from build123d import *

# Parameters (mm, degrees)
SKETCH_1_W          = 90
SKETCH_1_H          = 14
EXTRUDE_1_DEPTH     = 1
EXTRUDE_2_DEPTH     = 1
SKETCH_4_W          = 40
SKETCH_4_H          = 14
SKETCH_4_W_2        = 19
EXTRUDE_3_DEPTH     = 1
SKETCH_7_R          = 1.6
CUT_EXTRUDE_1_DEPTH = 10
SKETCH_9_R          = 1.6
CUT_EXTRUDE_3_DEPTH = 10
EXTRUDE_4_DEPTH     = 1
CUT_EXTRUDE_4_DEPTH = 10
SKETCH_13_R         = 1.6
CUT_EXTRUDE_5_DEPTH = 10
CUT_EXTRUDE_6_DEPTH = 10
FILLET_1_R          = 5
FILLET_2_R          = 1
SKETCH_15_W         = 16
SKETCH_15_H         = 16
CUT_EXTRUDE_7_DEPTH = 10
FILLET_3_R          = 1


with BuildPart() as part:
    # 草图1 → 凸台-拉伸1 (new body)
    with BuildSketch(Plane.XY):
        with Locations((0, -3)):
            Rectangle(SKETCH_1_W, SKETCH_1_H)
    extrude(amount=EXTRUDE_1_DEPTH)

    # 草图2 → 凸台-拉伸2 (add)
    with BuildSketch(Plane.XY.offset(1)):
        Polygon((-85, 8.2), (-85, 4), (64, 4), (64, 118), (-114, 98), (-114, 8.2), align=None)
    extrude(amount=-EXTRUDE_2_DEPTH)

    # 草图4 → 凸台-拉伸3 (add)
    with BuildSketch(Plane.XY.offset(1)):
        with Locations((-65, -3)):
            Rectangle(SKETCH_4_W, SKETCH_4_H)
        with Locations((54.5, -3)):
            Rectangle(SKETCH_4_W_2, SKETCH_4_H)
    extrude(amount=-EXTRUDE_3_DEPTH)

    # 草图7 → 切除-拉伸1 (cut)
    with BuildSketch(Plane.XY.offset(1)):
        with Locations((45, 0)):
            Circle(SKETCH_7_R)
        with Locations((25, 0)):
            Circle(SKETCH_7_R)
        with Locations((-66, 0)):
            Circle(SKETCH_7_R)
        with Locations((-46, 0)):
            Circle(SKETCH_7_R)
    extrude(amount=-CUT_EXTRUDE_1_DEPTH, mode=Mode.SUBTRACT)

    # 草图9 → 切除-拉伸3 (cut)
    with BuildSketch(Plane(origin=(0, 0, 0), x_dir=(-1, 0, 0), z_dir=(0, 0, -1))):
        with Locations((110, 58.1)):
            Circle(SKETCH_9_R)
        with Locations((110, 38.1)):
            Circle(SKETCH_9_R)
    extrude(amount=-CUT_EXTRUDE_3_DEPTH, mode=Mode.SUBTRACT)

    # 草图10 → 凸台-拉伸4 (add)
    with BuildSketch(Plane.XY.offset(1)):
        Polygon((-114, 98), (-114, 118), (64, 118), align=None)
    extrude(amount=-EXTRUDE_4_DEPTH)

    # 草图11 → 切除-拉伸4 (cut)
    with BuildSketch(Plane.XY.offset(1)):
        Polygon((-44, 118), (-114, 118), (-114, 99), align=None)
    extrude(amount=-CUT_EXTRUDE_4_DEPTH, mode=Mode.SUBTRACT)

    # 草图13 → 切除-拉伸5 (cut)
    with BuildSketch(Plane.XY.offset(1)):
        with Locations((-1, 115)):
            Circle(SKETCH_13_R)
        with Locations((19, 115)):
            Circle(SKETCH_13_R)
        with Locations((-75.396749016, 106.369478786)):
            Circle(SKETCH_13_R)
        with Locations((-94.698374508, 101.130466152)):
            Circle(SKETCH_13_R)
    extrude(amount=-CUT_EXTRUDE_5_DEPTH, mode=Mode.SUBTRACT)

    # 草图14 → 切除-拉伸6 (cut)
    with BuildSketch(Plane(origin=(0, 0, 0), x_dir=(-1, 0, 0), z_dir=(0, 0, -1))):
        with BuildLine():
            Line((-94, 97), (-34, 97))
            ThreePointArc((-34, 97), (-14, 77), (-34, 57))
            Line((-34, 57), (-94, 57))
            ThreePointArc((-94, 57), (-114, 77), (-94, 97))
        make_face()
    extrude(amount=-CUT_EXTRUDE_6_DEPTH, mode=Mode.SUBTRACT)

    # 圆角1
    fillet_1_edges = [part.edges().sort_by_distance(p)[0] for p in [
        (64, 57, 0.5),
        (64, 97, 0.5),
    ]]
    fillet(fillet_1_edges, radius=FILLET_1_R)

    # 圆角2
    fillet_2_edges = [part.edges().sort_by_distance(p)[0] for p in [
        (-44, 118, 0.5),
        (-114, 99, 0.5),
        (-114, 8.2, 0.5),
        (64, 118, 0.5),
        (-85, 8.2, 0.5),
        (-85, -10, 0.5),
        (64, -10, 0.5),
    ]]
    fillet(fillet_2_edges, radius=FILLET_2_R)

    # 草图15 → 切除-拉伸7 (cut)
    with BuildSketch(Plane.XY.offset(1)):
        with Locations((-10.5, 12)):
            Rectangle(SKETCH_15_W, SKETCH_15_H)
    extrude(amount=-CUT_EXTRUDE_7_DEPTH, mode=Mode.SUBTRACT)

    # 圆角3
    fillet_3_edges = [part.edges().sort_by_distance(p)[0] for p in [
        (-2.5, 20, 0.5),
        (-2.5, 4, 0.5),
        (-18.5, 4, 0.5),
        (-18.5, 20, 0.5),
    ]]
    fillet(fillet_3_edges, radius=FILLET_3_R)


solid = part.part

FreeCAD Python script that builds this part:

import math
import FreeCAD as App
import Part
import Sketcher
from FreeCAD import Vector
Q = App.Units.Quantity


def edges_at(feature, points):
    """Names of the edges that pass closest to the given points."""
    edges = feature.Shape.Edges
    near = lambda p: min(range(len(edges)), key=lambda i: edges[i].distToShape(Part.Vertex(*p))[0])
    return sorted({f"Edge{near(p) + 1}" for p in points})


def add_polygon(sketch, points):
    """Adds a closed chain of lines whose ends are joined by coincident constraints."""
    first, n = sketch.GeometryCount, len(points)
    for a, b in zip(points, points[1:] + points[:1]):
        sketch.addGeometry(Part.LineSegment(App.Vector(*a, 0), App.Vector(*b, 0)), False)
    for i in range(n):
        sketch.addConstraint(Sketcher.Constraint("Coincident", first + i, 2, first + (i + 1) % n, 1))

doc = App.newDocument("Part")
params = doc.addObject("Spreadsheet::Sheet", "Params")
for row, (alias, value) in enumerate([
    ("sketch1_width", "90 mm"),
    ("sketch1_height", "14 mm"),
    ("pad1_length", "1 mm"),
    ("sketch2_width", "149 mm"),
    ("sketch2_width2", "29 mm"),
    ("sketch2_height", "114 mm"),
    ("sketch2_height2", "4.2 mm"),
    ("sketch2_height3", "89.8 mm"),
    ("pad2_length", "1 mm"),
    ("sketch3_width", "40 mm"),
    ("sketch3_width2", "19 mm"),
    ("sketch3_height", "14 mm"),
    ("pad3_length", "1 mm"),
    ("sketch4_diameter", "3.2 mm"),
    ("pocket1_length", "10 mm"),
    ("sketch5_diameter", "3.2 mm"),
    ("pocket2_length", "10 mm"),
    ("sketch6_width", "178 mm"),
    ("sketch6_height", "20 mm"),
    ("pad4_length", "1 mm"),
    ("sketch7_width", "70 mm"),
    ("sketch7_height", "19 mm"),
    ("pocket3_length", "10 mm"),
    ("sketch8_diameter", "3.2 mm"),
    ("pocket4_length", "10 mm"),
    ("sketch9_radius", "20 mm"),
    ("sketch9_width", "60 mm"),
    ("pocket5_length", "10 mm"),
    ("fillet_radius", "5 mm"),
    ("fillet2_radius", "1 mm"),
    ("sketch10_width", "16 mm"),
    ("pocket6_length", "10 mm"),
    ("fillet3_radius", "1 mm"),
], start=1):
    params.set(f"A{row}", alias)
    params.set(f"B{row}", "=" + value)
    params.setAlias(f"B{row}", alias)

body = doc.addObject("PartDesign::Body", "Body")

sketch1 = body.newObject("Sketcher::SketchObject", "Sketch")
sketch1.AttachmentSupport = (doc.getObject("XY_Plane"), [""])
sketch1.MapMode = "FlatFace"
add_polygon(sketch1, [(-45, 4), (-45, -10), (45, -10), (45, 4)])
sketch1.addConstraint(Sketcher.Constraint("Vertical", 0))
sketch1.addConstraint(Sketcher.Constraint("Horizontal", 1))
sketch1.addConstraint(Sketcher.Constraint("Vertical", 2))
sketch1.addConstraint(Sketcher.Constraint("Horizontal", 3))
sketch1.addConstraint(Sketcher.Constraint("DistanceX", 1, 1, 1, 2, Q("90 mm")))
sketch1.addConstraint(Sketcher.Constraint("DistanceY", 0, 2, 0, 1, Q("14 mm")))
sketch1.addConstraint(Sketcher.Constraint("DistanceX", 0, 2, -1, 1, Q("45 mm")))
sketch1.addConstraint(Sketcher.Constraint("DistanceY", 0, 2, -1, 1, Q("10 mm")))
sketch1.setExpression("Constraints[8]", "Params.sketch1_width")
sketch1.setExpression("Constraints[9]", "Params.sketch1_height")
pad1 = body.newObject("PartDesign::Pad", "Pad")
pad1.Profile = sketch1
pad1.setExpression("Length", "Params.pad1_length")

sketch2 = body.newObject("Sketcher::SketchObject", "Sketch001")
sketch2.AttachmentSupport = (doc.getObject("XY_Plane"), [""])
sketch2.MapMode = "FlatFace"
sketch2.AttachmentOffset = App.Placement(Vector(0, 0, 1), App.Rotation())
add_polygon(sketch2, [(-85, 8.2), (-85, 4), (64, 4), (64, 118), (-114, 98), (-114, 8.2)])
sketch2.addConstraint(Sketcher.Constraint("Vertical", 0))
sketch2.addConstraint(Sketcher.Constraint("Horizontal", 1))
sketch2.addConstraint(Sketcher.Constraint("Vertical", 2))
sketch2.addConstraint(Sketcher.Constraint("Vertical", 4))
sketch2.addConstraint(Sketcher.Constraint("Horizontal", 5))
sketch2.addConstraint(Sketcher.Constraint("DistanceX", 1, 1, 1, 2, Q("149 mm")))
sketch2.addConstraint(Sketcher.Constraint("DistanceX", 5, 1, 5, 2, Q("29 mm")))
sketch2.addConstraint(Sketcher.Constraint("DistanceY", 2, 1, 2, 2, Q("114 mm")))
sketch2.addConstraint(Sketcher.Constraint("DistanceY", 0, 2, 0, 1, Q("4.2 mm")))
sketch2.addConstraint(Sketcher.Constraint("DistanceY", 4, 2, 4, 1, Q("89.8 mm")))
sketch2.addConstraint(Sketcher.Constraint("DistanceX", 0, 2, -1, 1, Q("85 mm")))
sketch2.addConstraint(Sketcher.Constraint("DistanceY", -1, 1, 0, 2, Q("4 mm")))
sketch2.setExpression("Constraints[11]", "Params.sketch2_width")
sketch2.setExpression("Constraints[12]", "Params.sketch2_width2")
sketch2.setExpression("Constraints[13]", "Params.sketch2_height")
sketch2.setExpression("Constraints[14]", "Params.sketch2_height2")
sketch2.setExpression("Constraints[15]", "Params.sketch2_height3")
pad2 = body.newObject("PartDesign::Pad", "Pad001")
pad2.Profile = sketch2
pad2.setExpression("Length", "Params.pad2_length")
pad2.Reversed = True

sketch3 = body.newObject("Sketcher::SketchObject", "Sketch002")
sketch3.AttachmentSupport = (doc.getObject("XY_Plane"), [""])
sketch3.MapMode = "FlatFace"
sketch3.AttachmentOffset = App.Placement(Vector(0, 0, 1), App.Rotation())
add_polygon(sketch3, [(-85, 4), (-85, -10), (-45, -10), (-45, 4)])
add_polygon(sketch3, [(45, 4), (45, -10), (64, -10), (64, 4)])
sketch3.addConstraint(Sketcher.Constraint("Vertical", 0))
sketch3.addConstraint(Sketcher.Constraint("Horizontal", 1))
sketch3.addConstraint(Sketcher.Constraint("Vertical", 2))
sketch3.addConstraint(Sketcher.Constraint("Horizontal", 3))
sketch3.addConstraint(Sketcher.Constraint("Vertical", 4))
sketch3.addConstraint(Sketcher.Constraint("Horizontal", 5))
sketch3.addConstraint(Sketcher.Constraint("Vertical", 6))
sketch3.addConstraint(Sketcher.Constraint("Horizontal", 7))
sketch3.addConstraint(Sketcher.Constraint("Symmetric", 1, 2, 4, 2, -2))
sketch3.addConstraint(Sketcher.Constraint("Horizontal", 3, 2, 6, 2))
sketch3.addConstraint(Sketcher.Constraint("DistanceX", 1, 1, 1, 2, Q("40 mm")))
sketch3.addConstraint(Sketcher.Constraint("DistanceX", 5, 1, 5, 2, Q("19 mm")))
sketch3.addConstraint(Sketcher.Constraint("DistanceY", 0, 2, 0, 1, Q("14 mm")))
sketch3.addConstraint(Sketcher.Constraint("DistanceX", 0, 2, -1, 1, Q("85 mm")))
sketch3.addConstraint(Sketcher.Constraint("DistanceY", 0, 2, -1, 1, Q("10 mm")))
sketch3.setExpression("Constraints[18]", "Params.sketch3_width")
sketch3.setExpression("Constraints[19]", "Params.sketch3_width2")
sketch3.setExpression("Constraints[20]", "Params.sketch3_height")
pad3 = body.newObject("PartDesign::Pad", "Pad002")
pad3.Profile = sketch3
pad3.setExpression("Length", "Params.pad3_length")
pad3.Reversed = True

sketch4 = body.newObject("Sketcher::SketchObject", "Sketch003")
sketch4.AttachmentSupport = (doc.getObject("XY_Plane"), [""])
sketch4.MapMode = "FlatFace"
sketch4.AttachmentOffset = App.Placement(Vector(0, 0, 1), App.Rotation())
sketch4.addGeometry(Part.Circle(Vector(45, 0, 0), Vector(0, 0, 1), 1.6), False)
sketch4.addGeometry(Part.Circle(Vector(25, 0, 0), Vector(0, 0, 1), 1.6), False)
sketch4.addGeometry(Part.Circle(Vector(-66, 0, 0), Vector(0, 0, 1), 1.6), False)
sketch4.addGeometry(Part.Circle(Vector(-46, 0, 0), Vector(0, 0, 1), 1.6), False)
sketch4.addConstraint(Sketcher.Constraint("Equal", 0, 1))
sketch4.addConstraint(Sketcher.Constraint("Equal", 1, 2))
sketch4.addConstraint(Sketcher.Constraint("Equal", 2, 3))
sketch4.addConstraint(Sketcher.Constraint("PointOnObject", 0, 3, -1))
sketch4.addConstraint(Sketcher.Constraint("PointOnObject", 1, 3, -1))
sketch4.addConstraint(Sketcher.Constraint("PointOnObject", 2, 3, -1))
sketch4.addConstraint(Sketcher.Constraint("PointOnObject", 3, 3, -1))
sketch4.addConstraint(Sketcher.Constraint("Diameter", 0, Q("3.2 mm")))
sketch4.addConstraint(Sketcher.Constraint("DistanceX", -1, 1, 0, 3, Q("45 mm")))
sketch4.addConstraint(Sketcher.Constraint("DistanceX", -1, 1, 1, 3, Q("25 mm")))
sketch4.addConstraint(Sketcher.Constraint("DistanceX", 2, 3, -1, 1, Q("66 mm")))
sketch4.addConstraint(Sketcher.Constraint("DistanceX", 3, 3, -1, 1, Q("46 mm")))
sketch4.setExpression("Constraints[7]", "Params.sketch4_diameter")
pocket1 = body.newObject("PartDesign::Pocket", "Pocket")
pocket1.Profile = sketch4
pocket1.setExpression("Length", "Params.pocket1_length")

sketch5 = body.newObject("Sketcher::SketchObject", "Sketch004")
sketch5.AttachmentSupport = (doc.getObject("XY_Plane"), [""])
sketch5.MapMode = "FlatFace"
sketch5.addGeometry(Part.Circle(Vector(-110, 58.1, 0), Vector(0, 0, 1), 1.6), False)
sketch5.addGeometry(Part.Circle(Vector(-110, 38.1, 0), Vector(0, 0, 1), 1.6), False)
sketch5.addConstraint(Sketcher.Constraint("Equal", 0, 1))
sketch5.addConstraint(Sketcher.Constraint("Vertical", 0, 3, 1, 3))
sketch5.addConstraint(Sketcher.Constraint("Diameter", 0, Q("3.2 mm")))
sketch5.addConstraint(Sketcher.Constraint("DistanceX", 0, 3, -1, 1, Q("110 mm")))
sketch5.addConstraint(Sketcher.Constraint("DistanceY", 1, 3, 0, 3, Q("20 mm")))
sketch5.addConstraint(Sketcher.Constraint("DistanceY", -1, 1, 0, 3, Q("58.1 mm")))
sketch5.setExpression("Constraints[2]", "Params.sketch5_diameter")
pocket2 = body.newObject("PartDesign::Pocket", "Pocket001")
pocket2.Profile = sketch5
pocket2.setExpression("Length", "Params.pocket2_length")
pocket2.Reversed = True

sketch6 = body.newObject("Sketcher::SketchObject", "Sketch005")
sketch6.AttachmentSupport = (doc.getObject("XY_Plane"), [""])
sketch6.MapMode = "FlatFace"
sketch6.AttachmentOffset = App.Placement(Vector(0, 0, 1), App.Rotation())
add_polygon(sketch6, [(-114, 118), (-114, 98), (64, 118)])
sketch6.addConstraint(Sketcher.Constraint("Vertical", 0))
sketch6.addConstraint(Sketcher.Constraint("Horizontal", 2))
sketch6.addConstraint(Sketcher.Constraint("DistanceX", 2, 2, 2, 1, Q("178 mm")))
sketch6.addConstraint(Sketcher.Constraint("DistanceY", 0, 2, 0, 1, Q("20 mm")))
sketch6.addConstraint(Sketcher.Constraint("DistanceX", 0, 2, -1, 1, Q("114 mm")))
sketch6.addConstraint(Sketcher.Constraint("DistanceY", -1, 1, 0, 2, Q("98 mm")))
sketch6.setExpression("Constraints[5]", "Params.sketch6_width")
sketch6.setExpression("Constraints[6]", "Params.sketch6_height")
pad4 = body.newObject("PartDesign::Pad", "Pad003")
pad4.Profile = sketch6
pad4.setExpression("Length", "Params.pad4_length")
pad4.Reversed = True

sketch7 = body.newObject("Sketcher::SketchObject", "Sketch006")
sketch7.AttachmentSupport = (doc.getObject("XY_Plane"), [""])
sketch7.MapMode = "FlatFace"
sketch7.AttachmentOffset = App.Placement(Vector(0, 0, 1), App.Rotation())
add_polygon(sketch7, [(-44, 118), (-114, 118), (-114, 99)])
sketch7.addConstraint(Sketcher.Constraint("Horizontal", 0))
sketch7.addConstraint(Sketcher.Constraint("Vertical", 1))
sketch7.addConstraint(Sketcher.Constraint("DistanceX", 0, 2, 0, 1, Q("70 mm")))
sketch7.addConstraint(Sketcher.Constraint("DistanceY", 1, 2, 1, 1, Q("19 mm")))
sketch7.addConstraint(Sketcher.Constraint("DistanceX", 0, 2, -1, 1, Q("114 mm")))
sketch7.addConstraint(Sketcher.Constraint("DistanceY", -1, 1, 0, 2, Q("118 mm")))
sketch7.setExpression("Constraints[5]", "Params.sketch7_width")
sketch7.setExpression("Constraints[6]", "Params.sketch7_height")
pocket3 = body.newObject("PartDesign::Pocket", "Pocket002")
pocket3.Profile = sketch7
pocket3.setExpression("Length", "Params.pocket3_length")

sketch8 = body.newObject("Sketcher::SketchObject", "Sketch007")
sketch8.AttachmentSupport = (doc.getObject("XY_Plane"), [""])
sketch8.MapMode = "FlatFace"
sketch8.AttachmentOffset = App.Placement(Vector(0, 0, 1), App.Rotation())
sketch8.addGeometry(Part.Circle(Vector(-1, 115, 0), Vector(0, 0, 1), 1.6), False)
sketch8.addGeometry(Part.Circle(Vector(19, 115, 0), Vector(0, 0, 1), 1.6), False)
sketch8.addGeometry(Part.Circle(Vector(-75.396749, 106.369479, 0), Vector(0, 0, 1), 1.6), False)
sketch8.addGeometry(Part.Circle(Vector(-94.698375, 101.130466, 0), Vector(0, 0, 1), 1.6), False)
sketch8.addConstraint(Sketcher.Constraint("Equal", 0, 1))
sketch8.addConstraint(Sketcher.Constraint("Equal", 1, 2))
sketch8.addConstraint(Sketcher.Constraint("Equal", 2, 3))
sketch8.addConstraint(Sketcher.Constraint("Horizontal", 0, 3, 1, 3))
sketch8.addConstraint(Sketcher.Constraint("Diameter", 0, Q("3.2 mm")))
sketch8.addConstraint(Sketcher.Constraint("DistanceX", 0, 3, -1, 1, Q("1 mm")))
sketch8.addConstraint(Sketcher.Constraint("DistanceY", -1, 1, 0, 3, Q("115 mm")))
sketch8.addConstraint(Sketcher.Constraint("DistanceX", -1, 1, 1, 3, Q("19 mm")))
sketch8.addConstraint(Sketcher.Constraint("DistanceX", 2, 3, -1, 1, Q("75.396749 mm")))
sketch8.addConstraint(Sketcher.Constraint("DistanceY", -1, 1, 2, 3, Q("106.369479 mm")))
sketch8.addConstraint(Sketcher.Constraint("DistanceX", 3, 3, -1, 1, Q("94.698375 mm")))
sketch8.addConstraint(Sketcher.Constraint("DistanceY", -1, 1, 3, 3, Q("101.130466 mm")))
sketch8.setExpression("Constraints[4]", "Params.sketch8_diameter")
pocket4 = body.newObject("PartDesign::Pocket", "Pocket003")
pocket4.Profile = sketch8
pocket4.setExpression("Length", "Params.pocket4_length")

sketch9 = body.newObject("Sketcher::SketchObject", "Sketch008")
sketch9.AttachmentSupport = (doc.getObject("XY_Plane"), [""])
sketch9.MapMode = "FlatFace"
sketch9.addGeometry(Part.LineSegment(Vector(34, 97, 0), Vector(94, 97, 0)), False)
sketch9.addGeometry(Part.ArcOfCircle(Part.Circle(Vector(94, 77, 0), Vector(0, 0, 1), 20), math.radians(-90), math.radians(90)), False)
sketch9.addGeometry(Part.LineSegment(Vector(94, 57, 0), Vector(34, 57, 0)), False)
sketch9.addGeometry(Part.ArcOfCircle(Part.Circle(Vector(34, 77, 0), Vector(0, 0, 1), 20), math.radians(90), math.radians(270)), False)
sketch9.addConstraint(Sketcher.Constraint("Tangent", 0, 2, 1, 2))
sketch9.addConstraint(Sketcher.Constraint("Tangent", 1, 1, 2, 1))
sketch9.addConstraint(Sketcher.Constraint("Tangent", 2, 2, 3, 2))
sketch9.addConstraint(Sketcher.Constraint("Tangent", 3, 1, 0, 1))
sketch9.addConstraint(Sketcher.Constraint("Horizontal", 0))
sketch9.addConstraint(Sketcher.Constraint("Horizontal", 2))
sketch9.addConstraint(Sketcher.Constraint("Radius", 1, Q("20 mm")))
sketch9.addConstraint(Sketcher.Constraint("DistanceX", 0, 1, 0, 2, Q("60 mm")))
sketch9.addConstraint(Sketcher.Constraint("DistanceX", -1, 1, 1, 3, Q("94 mm")))
sketch9.addConstraint(Sketcher.Constraint("DistanceY", -1, 1, 1, 3, Q("77 mm")))
sketch9.setExpression("Constraints[6]", "Params.sketch9_radius")
sketch9.setExpression("Constraints[7]", "Params.sketch9_width")
pocket5 = body.newObject("PartDesign::Pocket", "Pocket004")
pocket5.Profile = sketch9
pocket5.setExpression("Length", "Params.pocket5_length")
pocket5.Reversed = True
doc.recompute()

fillet = body.newObject("PartDesign::Fillet", "Fillet")
fillet.Base = (pocket5, edges_at(pocket5, [(64, 57, 0.5), (64, 97, 0.5)]))
fillet.setExpression("Radius", "Params.fillet_radius")
doc.recompute()

fillet2 = body.newObject("PartDesign::Fillet", "Fillet001")
fillet2.Base = (fillet, edges_at(fillet, [
    (-44, 118, 0.5),
    (-114, 99, 0.5),
    (-114, 8.2, 0.5),
    (64, 118, 0.5),
    (-85, 8.2, 0.5),
    (-85, -10, 0.5),
    (64, -10, 0.5),
]))
fillet2.setExpression("Radius", "Params.fillet2_radius")

sketch10 = body.newObject("Sketcher::SketchObject", "Sketch009")
sketch10.AttachmentSupport = (doc.getObject("XY_Plane"), [""])
sketch10.MapMode = "FlatFace"
sketch10.AttachmentOffset = App.Placement(Vector(0, 0, 1), App.Rotation())
add_polygon(sketch10, [(-18.5, 20), (-18.5, 4), (-2.5, 4), (-2.5, 20)])
sketch10.addConstraint(Sketcher.Constraint("Vertical", 0))
sketch10.addConstraint(Sketcher.Constraint("Horizontal", 1))
sketch10.addConstraint(Sketcher.Constraint("Vertical", 2))
sketch10.addConstraint(Sketcher.Constraint("Horizontal", 3))
sketch10.addConstraint(Sketcher.Constraint("Equal", 3, 0))
sketch10.addConstraint(Sketcher.Constraint("DistanceX", 1, 1, 1, 2, Q("16 mm")))
sketch10.addConstraint(Sketcher.Constraint("DistanceY", -1, 1, 0, 2, Q("4 mm")))
sketch10.addConstraint(Sketcher.Constraint("DistanceX", 0, 2, -1, 1, Q("18.5 mm")))
sketch10.setExpression("Constraints[9]", "Params.sketch10_width")
pocket6 = body.newObject("PartDesign::Pocket", "Pocket005")
pocket6.Profile = sketch10
pocket6.setExpression("Length", "Params.pocket6_length")
doc.recompute()

fillet3 = body.newObject("PartDesign::Fillet", "Fillet002")
fillet3.Base = (pocket6, edges_at(pocket6, [
    (-2.5, 20, 0.5),
    (-2.5, 4, 0.5),
    (-18.5, 4, 0.5),
    (-18.5, 20, 0.5),
]))
fillet3.setExpression("Radius", "Params.fillet3_radius")

doc.recompute()
